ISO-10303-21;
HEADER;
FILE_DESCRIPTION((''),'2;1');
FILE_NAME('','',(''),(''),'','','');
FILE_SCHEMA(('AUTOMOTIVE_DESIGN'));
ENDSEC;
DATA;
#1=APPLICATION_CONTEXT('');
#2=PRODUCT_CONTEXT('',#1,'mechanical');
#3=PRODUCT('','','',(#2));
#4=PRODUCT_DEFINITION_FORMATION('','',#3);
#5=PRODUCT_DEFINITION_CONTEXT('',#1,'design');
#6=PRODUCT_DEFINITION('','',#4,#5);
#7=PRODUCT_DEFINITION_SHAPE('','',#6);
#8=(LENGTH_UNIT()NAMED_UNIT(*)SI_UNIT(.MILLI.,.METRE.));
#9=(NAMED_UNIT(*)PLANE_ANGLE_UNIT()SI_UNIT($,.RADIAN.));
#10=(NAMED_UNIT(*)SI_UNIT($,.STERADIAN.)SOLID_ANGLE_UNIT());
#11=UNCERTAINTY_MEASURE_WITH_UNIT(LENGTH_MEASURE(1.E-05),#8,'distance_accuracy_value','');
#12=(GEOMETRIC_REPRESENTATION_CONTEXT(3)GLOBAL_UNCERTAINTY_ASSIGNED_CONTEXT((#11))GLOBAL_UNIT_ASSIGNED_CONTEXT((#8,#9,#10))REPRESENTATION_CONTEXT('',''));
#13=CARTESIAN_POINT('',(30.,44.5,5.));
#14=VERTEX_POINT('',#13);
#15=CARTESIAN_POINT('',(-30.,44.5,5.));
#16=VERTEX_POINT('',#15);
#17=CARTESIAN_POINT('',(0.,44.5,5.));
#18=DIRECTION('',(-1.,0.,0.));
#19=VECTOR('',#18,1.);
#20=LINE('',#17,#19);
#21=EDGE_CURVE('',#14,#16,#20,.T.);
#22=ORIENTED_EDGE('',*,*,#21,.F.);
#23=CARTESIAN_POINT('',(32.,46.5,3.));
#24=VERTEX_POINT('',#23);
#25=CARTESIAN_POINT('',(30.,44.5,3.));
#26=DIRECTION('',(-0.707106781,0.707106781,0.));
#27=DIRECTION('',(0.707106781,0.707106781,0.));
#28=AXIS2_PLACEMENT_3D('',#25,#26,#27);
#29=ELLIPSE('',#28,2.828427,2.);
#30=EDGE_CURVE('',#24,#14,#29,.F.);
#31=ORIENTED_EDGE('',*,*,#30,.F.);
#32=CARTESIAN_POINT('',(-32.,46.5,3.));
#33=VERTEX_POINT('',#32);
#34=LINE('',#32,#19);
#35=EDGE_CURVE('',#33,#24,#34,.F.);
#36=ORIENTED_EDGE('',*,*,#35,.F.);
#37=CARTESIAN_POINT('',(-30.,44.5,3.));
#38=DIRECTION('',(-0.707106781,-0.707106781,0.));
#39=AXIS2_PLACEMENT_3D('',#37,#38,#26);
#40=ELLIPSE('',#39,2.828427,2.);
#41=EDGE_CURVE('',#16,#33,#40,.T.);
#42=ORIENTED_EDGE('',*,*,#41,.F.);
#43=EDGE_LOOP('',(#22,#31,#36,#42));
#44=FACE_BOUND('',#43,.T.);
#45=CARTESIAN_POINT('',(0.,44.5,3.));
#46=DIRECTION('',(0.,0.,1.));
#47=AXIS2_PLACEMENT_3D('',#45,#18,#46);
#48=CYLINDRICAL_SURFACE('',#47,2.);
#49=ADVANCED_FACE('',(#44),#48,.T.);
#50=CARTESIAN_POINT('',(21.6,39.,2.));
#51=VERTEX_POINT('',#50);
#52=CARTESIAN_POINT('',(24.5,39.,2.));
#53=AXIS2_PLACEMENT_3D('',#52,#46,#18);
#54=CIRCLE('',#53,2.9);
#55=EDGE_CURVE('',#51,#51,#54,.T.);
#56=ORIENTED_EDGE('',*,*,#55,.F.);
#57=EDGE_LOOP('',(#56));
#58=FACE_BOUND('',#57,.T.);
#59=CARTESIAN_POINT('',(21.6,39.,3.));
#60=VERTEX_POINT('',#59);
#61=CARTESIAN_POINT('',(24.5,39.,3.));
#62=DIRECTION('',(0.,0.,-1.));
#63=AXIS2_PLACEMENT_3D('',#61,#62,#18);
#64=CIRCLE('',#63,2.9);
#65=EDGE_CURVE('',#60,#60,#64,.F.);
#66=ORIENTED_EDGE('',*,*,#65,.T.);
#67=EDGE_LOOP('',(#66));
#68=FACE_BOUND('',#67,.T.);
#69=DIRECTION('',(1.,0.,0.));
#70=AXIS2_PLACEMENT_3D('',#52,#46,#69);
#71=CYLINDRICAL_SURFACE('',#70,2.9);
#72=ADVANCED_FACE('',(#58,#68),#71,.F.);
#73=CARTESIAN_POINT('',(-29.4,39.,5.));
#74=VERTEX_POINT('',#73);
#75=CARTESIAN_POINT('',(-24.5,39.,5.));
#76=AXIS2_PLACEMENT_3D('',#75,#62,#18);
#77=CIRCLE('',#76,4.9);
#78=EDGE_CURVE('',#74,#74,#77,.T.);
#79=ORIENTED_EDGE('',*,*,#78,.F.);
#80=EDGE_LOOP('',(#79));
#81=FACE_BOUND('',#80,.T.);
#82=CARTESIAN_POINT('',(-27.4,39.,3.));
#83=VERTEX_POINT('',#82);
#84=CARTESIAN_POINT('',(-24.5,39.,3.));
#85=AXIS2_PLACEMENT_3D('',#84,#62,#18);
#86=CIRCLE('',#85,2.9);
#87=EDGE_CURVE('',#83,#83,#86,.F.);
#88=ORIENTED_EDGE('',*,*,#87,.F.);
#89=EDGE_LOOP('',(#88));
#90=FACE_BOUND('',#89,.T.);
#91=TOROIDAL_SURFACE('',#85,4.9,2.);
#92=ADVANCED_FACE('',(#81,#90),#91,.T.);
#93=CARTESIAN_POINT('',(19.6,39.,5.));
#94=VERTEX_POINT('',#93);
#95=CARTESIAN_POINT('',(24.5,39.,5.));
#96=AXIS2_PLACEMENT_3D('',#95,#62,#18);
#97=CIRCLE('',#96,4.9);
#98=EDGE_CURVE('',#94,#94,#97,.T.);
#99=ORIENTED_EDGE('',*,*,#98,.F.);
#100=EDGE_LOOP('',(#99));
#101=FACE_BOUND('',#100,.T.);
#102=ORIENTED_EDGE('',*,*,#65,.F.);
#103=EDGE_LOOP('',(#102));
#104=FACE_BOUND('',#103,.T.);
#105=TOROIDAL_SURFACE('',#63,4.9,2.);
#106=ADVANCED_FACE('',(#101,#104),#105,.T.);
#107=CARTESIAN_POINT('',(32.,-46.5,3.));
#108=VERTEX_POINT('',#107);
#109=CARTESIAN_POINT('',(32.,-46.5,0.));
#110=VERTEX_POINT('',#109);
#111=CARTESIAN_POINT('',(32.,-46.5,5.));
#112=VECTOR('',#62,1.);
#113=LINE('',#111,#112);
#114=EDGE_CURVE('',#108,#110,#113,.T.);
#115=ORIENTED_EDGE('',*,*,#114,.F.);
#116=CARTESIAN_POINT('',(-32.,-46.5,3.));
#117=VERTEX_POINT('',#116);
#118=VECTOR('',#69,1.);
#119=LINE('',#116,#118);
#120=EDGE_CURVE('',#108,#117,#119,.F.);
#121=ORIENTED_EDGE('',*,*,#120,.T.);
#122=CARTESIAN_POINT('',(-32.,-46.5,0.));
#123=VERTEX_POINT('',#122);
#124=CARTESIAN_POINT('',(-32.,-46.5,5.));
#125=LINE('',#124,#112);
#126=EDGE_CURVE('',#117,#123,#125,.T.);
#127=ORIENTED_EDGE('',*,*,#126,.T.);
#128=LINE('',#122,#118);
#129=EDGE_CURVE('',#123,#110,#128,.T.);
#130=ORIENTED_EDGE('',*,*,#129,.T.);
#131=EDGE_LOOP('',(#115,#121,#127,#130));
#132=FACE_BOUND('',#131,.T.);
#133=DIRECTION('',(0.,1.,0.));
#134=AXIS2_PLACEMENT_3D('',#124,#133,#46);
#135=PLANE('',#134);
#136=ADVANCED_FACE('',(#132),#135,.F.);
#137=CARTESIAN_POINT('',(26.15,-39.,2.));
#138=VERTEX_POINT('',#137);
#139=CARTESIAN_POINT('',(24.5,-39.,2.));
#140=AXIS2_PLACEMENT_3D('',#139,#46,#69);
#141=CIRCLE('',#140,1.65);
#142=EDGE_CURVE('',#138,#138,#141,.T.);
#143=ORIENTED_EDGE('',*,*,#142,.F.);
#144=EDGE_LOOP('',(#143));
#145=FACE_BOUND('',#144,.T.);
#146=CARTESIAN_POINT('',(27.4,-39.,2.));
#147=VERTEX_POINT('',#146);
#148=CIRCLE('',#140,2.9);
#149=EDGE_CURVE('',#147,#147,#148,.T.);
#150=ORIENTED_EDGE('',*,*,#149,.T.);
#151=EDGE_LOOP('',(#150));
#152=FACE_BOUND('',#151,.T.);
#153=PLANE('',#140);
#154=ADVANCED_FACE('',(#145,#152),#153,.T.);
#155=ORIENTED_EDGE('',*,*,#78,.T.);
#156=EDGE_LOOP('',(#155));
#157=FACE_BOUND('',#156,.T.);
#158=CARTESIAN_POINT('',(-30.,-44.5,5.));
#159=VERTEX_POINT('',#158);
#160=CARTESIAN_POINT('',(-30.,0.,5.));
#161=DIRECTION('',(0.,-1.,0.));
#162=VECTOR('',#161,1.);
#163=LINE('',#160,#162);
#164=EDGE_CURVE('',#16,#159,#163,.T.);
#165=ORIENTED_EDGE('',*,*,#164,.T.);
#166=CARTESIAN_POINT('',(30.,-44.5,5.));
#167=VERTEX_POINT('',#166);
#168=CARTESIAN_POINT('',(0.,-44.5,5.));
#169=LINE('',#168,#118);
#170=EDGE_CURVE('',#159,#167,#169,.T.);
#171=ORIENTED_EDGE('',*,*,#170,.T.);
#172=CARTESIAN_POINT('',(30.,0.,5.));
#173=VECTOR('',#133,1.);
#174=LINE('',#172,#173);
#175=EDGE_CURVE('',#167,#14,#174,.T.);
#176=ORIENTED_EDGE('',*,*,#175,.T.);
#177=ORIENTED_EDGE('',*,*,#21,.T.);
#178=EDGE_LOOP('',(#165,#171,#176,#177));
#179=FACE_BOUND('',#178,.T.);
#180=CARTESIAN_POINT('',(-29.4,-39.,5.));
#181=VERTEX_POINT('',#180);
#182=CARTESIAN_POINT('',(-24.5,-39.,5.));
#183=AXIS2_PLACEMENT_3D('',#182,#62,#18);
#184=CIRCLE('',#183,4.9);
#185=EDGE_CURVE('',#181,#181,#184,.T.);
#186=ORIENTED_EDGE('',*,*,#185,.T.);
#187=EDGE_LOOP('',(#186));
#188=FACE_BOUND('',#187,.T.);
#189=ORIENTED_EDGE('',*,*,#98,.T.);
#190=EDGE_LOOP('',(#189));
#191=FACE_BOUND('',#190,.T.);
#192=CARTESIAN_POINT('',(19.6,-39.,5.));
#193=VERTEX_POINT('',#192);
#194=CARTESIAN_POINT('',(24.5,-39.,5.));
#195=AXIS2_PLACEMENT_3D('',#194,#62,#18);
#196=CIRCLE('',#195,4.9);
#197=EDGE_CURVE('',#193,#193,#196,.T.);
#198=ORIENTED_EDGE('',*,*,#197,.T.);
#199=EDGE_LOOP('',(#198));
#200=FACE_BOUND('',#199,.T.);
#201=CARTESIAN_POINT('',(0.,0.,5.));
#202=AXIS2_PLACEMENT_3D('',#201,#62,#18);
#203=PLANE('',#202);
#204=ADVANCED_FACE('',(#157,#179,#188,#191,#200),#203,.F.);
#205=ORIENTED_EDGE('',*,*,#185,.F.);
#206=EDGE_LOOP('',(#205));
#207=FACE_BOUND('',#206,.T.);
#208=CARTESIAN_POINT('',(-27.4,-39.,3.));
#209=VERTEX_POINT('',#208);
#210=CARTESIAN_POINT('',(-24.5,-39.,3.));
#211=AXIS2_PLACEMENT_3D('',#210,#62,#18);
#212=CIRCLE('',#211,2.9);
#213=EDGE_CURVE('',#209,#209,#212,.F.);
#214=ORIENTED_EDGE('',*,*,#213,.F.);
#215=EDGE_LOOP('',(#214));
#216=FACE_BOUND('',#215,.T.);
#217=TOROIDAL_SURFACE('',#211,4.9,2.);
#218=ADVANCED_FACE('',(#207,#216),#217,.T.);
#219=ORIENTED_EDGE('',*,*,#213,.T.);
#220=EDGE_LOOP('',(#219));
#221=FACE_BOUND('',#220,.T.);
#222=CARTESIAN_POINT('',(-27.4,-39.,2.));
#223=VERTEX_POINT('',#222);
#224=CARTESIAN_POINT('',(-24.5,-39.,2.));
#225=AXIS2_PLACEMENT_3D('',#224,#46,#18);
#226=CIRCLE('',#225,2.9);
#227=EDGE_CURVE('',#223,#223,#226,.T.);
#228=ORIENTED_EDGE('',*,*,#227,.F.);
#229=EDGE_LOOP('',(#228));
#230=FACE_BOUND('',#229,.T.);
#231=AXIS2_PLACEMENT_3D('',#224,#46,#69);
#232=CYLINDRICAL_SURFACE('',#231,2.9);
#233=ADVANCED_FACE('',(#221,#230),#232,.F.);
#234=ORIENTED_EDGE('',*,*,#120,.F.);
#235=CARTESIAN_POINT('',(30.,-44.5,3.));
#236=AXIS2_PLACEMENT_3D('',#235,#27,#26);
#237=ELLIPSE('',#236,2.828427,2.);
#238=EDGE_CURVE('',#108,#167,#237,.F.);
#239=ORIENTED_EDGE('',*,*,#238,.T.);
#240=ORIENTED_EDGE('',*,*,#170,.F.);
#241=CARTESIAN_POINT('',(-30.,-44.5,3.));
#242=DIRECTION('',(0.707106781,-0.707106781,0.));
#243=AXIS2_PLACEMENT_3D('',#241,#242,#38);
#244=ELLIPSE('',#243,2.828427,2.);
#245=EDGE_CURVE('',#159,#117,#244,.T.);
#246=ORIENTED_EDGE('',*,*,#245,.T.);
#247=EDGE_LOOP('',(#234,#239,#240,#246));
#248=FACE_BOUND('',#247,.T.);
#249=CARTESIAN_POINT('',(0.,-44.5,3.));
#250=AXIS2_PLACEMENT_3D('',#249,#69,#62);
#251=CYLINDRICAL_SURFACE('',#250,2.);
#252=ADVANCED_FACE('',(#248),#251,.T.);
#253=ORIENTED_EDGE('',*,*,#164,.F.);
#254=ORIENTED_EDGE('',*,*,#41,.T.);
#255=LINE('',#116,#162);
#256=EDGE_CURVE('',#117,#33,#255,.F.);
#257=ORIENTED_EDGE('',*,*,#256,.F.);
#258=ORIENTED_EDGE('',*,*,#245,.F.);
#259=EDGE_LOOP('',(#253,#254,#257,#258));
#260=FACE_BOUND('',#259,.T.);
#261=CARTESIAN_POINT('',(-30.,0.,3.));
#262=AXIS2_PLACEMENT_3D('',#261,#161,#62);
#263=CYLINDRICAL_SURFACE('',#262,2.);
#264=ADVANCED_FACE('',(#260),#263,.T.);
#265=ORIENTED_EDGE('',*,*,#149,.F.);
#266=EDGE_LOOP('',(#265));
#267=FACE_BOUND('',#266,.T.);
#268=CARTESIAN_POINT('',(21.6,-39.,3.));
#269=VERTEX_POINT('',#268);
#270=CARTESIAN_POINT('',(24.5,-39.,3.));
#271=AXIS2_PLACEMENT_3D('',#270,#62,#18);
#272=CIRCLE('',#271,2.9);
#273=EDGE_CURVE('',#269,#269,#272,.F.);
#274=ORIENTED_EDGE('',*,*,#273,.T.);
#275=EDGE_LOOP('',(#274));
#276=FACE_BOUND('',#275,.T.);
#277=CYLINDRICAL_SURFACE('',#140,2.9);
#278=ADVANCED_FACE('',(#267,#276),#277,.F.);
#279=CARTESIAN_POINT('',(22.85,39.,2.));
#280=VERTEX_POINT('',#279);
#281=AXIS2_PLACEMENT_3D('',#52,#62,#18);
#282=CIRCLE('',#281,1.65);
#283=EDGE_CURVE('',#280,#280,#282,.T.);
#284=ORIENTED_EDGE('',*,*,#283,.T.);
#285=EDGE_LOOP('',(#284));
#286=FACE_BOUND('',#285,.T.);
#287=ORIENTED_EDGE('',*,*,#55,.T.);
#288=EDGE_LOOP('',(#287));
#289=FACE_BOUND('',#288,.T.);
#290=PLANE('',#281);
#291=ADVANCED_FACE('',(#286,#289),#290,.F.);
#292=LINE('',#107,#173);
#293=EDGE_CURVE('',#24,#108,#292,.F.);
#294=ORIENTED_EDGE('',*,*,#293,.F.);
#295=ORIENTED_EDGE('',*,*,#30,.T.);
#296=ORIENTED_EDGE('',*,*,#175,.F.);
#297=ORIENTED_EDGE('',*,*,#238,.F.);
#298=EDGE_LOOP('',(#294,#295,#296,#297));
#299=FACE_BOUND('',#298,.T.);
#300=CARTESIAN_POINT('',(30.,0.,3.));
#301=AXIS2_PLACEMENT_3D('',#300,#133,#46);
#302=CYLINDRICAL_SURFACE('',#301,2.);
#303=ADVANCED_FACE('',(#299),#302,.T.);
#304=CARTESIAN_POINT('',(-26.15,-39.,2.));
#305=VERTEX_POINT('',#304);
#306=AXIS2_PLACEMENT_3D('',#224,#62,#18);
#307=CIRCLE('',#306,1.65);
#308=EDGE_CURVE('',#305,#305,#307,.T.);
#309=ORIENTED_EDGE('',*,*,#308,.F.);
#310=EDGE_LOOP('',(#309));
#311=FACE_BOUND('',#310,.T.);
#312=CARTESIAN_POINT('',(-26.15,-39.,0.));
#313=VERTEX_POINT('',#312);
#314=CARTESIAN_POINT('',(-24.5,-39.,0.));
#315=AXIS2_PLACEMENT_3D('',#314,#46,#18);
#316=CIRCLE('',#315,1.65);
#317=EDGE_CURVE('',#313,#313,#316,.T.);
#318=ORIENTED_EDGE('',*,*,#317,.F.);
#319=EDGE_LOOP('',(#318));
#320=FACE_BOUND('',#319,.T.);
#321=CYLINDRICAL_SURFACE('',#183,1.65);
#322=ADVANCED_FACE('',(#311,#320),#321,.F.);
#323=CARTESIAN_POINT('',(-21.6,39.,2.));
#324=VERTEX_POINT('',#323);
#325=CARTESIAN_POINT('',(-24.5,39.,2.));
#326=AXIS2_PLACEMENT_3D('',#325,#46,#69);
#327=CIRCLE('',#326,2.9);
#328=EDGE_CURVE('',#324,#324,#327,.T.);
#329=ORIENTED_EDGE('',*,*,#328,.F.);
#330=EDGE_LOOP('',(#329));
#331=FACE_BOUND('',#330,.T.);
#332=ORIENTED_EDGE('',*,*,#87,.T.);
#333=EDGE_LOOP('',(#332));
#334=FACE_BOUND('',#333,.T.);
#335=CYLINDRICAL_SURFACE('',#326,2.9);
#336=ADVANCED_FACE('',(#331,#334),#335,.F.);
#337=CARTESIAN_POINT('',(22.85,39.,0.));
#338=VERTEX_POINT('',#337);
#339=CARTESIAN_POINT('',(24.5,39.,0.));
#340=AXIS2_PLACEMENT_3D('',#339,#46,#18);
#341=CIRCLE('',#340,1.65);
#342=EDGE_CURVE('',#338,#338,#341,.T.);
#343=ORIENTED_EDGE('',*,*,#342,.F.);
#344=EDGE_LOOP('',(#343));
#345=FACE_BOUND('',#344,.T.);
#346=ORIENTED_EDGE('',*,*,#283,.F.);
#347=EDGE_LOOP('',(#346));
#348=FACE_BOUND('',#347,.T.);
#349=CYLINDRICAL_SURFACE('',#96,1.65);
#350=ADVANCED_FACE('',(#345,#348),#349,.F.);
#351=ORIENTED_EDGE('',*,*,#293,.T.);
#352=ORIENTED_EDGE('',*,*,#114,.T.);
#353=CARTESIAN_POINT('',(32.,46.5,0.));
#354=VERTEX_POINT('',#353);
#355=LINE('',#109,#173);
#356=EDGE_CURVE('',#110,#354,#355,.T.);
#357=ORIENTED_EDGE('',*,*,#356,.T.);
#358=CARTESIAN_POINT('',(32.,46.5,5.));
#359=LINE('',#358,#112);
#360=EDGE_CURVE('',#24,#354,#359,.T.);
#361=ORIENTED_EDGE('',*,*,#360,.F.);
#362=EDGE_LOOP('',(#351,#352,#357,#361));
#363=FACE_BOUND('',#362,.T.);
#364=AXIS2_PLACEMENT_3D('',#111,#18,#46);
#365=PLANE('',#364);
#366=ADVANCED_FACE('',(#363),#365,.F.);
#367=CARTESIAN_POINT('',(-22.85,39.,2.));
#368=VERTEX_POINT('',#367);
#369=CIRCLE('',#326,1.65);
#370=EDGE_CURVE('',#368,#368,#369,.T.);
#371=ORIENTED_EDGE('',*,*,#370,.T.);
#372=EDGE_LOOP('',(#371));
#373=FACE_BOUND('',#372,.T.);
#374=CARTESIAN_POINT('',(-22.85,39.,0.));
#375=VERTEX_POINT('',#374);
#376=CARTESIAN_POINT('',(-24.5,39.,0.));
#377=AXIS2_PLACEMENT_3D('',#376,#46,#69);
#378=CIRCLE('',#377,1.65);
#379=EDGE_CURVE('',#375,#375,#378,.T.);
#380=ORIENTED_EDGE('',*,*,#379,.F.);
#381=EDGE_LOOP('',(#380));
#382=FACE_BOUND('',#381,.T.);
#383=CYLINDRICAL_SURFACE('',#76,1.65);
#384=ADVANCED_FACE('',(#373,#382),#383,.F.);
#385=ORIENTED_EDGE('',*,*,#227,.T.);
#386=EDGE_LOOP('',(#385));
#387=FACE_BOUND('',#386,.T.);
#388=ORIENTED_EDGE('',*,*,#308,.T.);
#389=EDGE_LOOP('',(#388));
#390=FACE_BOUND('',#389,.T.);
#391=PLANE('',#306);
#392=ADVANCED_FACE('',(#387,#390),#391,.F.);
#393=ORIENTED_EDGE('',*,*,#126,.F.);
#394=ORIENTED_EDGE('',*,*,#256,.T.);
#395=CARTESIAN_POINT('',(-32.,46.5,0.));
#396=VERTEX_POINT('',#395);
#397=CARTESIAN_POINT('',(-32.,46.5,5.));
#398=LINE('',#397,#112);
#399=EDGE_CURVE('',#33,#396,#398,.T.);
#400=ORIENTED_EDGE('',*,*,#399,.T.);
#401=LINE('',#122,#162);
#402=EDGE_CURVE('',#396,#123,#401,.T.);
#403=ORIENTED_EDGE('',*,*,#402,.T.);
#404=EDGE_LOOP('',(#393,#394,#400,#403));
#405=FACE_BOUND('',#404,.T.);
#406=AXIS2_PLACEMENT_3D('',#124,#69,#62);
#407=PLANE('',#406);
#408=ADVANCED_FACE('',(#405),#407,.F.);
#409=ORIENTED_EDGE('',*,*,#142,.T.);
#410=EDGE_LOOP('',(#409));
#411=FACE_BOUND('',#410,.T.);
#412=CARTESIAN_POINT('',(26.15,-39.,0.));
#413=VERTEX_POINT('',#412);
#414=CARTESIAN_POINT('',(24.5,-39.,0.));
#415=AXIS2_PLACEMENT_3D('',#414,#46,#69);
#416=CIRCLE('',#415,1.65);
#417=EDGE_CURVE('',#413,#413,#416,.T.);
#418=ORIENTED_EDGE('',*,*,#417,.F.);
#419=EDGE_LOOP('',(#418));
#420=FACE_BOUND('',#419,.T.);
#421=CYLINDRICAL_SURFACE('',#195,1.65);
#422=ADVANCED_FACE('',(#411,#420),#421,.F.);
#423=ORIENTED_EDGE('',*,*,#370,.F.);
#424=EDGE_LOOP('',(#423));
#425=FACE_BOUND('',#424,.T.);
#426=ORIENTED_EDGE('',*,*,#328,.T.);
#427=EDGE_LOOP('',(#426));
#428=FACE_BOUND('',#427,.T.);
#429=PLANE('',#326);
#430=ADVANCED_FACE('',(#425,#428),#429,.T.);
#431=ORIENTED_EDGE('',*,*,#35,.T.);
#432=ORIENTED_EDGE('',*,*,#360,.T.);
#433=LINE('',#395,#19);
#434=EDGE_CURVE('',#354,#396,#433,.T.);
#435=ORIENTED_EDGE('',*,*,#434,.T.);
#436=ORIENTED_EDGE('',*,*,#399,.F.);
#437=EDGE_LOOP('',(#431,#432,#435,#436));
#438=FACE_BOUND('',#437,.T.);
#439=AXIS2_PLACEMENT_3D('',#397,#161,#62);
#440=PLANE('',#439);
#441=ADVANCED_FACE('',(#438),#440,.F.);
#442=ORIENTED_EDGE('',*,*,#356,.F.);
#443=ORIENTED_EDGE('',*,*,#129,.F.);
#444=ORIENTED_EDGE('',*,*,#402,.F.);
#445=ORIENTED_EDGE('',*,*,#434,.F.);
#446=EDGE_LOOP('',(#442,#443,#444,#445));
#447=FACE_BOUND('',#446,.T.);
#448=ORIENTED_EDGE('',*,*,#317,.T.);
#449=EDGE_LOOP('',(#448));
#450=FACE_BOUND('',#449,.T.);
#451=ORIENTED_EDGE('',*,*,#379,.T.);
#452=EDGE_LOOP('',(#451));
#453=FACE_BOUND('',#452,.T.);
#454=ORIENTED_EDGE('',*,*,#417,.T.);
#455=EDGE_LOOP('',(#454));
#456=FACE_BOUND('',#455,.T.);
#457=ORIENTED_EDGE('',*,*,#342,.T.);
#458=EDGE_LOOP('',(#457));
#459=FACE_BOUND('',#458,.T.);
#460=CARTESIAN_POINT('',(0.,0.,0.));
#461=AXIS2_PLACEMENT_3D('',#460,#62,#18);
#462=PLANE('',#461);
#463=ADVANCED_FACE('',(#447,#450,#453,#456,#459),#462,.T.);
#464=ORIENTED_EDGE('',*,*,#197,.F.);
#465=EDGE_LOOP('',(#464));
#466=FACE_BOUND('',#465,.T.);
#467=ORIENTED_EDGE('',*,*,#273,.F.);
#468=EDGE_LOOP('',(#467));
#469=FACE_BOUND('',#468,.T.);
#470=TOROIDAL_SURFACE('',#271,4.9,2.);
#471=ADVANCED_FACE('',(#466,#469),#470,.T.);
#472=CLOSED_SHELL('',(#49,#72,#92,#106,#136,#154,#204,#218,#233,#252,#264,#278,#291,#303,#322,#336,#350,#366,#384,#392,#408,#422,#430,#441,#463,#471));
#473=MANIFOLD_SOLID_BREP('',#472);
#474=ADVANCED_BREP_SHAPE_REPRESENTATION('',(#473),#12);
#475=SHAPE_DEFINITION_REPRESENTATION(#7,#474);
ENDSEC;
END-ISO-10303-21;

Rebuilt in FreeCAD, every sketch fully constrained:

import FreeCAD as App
import Part
import Sketcher
from FreeCAD import Vector
Q = App.Units.Quantity


def edges_at(feature, points):
    """Names of the edges that pass closest to the given points."""
    edges = feature.Shape.Edges
    near = lambda p: min(range(len(edges)), key=lambda i: edges[i].distToShape(Part.Vertex(*p))[0])
    return sorted({f"Edge{near(p) + 1}" for p in points})

doc = App.newDocument("Part")
body = doc.addObject("PartDesign::Body", "Body")

# Sketch on XY plane
sketch1 = body.newObject("Sketcher::SketchObject", "Sketch")
sketch1.AttachmentSupport = (doc.getObject("XY_Plane"), [""])
sketch1.MapMode = "FlatFace"
sketch1.addGeometry(Part.LineSegment(Vector(-32, 46.5, 0), Vector(-32, -46.5, 0)), False)
sketch1.addGeometry(Part.LineSegment(Vector(-32, -46.5, 0), Vector(32, -46.5, 0)), False)
sketch1.addGeometry(Part.LineSegment(Vector(32, -46.5, 0), Vector(32, 46.5, 0)), False)
sketch1.addGeometry(Part.LineSegment(Vector(32, 46.5, 0), Vector(-32, 46.5, 0)), False)
sketch1.addGeometry(Part.Circle(Vector(-24.5, -39, 0), Vector(0, 0, 1), 1.6), False)
sketch1.addGeometry(Part.Circle(Vector(24.5, -39, 0), Vector(0, 0, 1), 1.6), False)
sketch1.addGeometry(Part.Circle(Vector(-24.5, 39, 0), Vector(0, 0, 1), 1.6), False)
sketch1.addGeometry(Part.Circle(Vector(24.5, 39, 0), Vector(0, 0, 1), 1.6), False)
sketch1.addConstraint(Sketcher.Constraint("Coincident", 0, 2, 1, 1))
sketch1.addConstraint(Sketcher.Constraint("Coincident", 1, 2, 2, 1))
sketch1.addConstraint(Sketcher.Constraint("Coincident", 2, 2, 3, 1))
sketch1.addConstraint(Sketcher.Constraint("Coincident", 3, 2, 0, 1))
sketch1.addConstraint(Sketcher.Constraint("Vertical", 0))
sketch1.addConstraint(Sketcher.Constraint("Horizontal", 1))
sketch1.addConstraint(Sketcher.Constraint("Vertical", 2))
sketch1.addConstraint(Sketcher.Constraint("Horizontal", 3))
sketch1.addConstraint(Sketcher.Constraint("Equal", 4, 5))
sketch1.addConstraint(Sketcher.Constraint("Equal", 5, 6))
sketch1.addConstraint(Sketcher.Constraint("Equal", 6, 7))
sketch1.addConstraint(Sketcher.Constraint("Symmetric", 5, 3, 6, 3, -1, 1))
sketch1.addConstraint(Sketcher.Constraint("Symmetric", 4, 3, 7, 3, -1, 1))
sketch1.addConstraint(Sketcher.Constraint("Symmetric", 0, 2, 2, 2, -1, 1))
sketch1.addConstraint(Sketcher.Constraint("Symmetric", 4, 3, 5, 3, -2))
sketch1.addConstraint(Sketcher.Constraint("Diameter", 4, Q("3.3 mm")))
sketch1.addConstraint(Sketcher.Constraint("DistanceX", 1, 1, 1, 2, Q("64 mm")))
sketch1.addConstraint(Sketcher.Constraint("DistanceY", 0, 2, 0, 1, Q("93 mm")))
sketch1.addConstraint(Sketcher.Constraint("DistanceY", 4, 3, -1, 1, Q("39 mm")))
sketch1.addConstraint(Sketcher.Constraint("DistanceX", 4, 3, 5, 3, Q("49 mm")))
pad1 = body.newObject("PartDesign::Pad", "Pad")
pad1.Profile = sketch1
pad1.Length = 5

# Sketch on XY plane
sketch2 = body.newObject("Sketcher::SketchObject", "Sketch001")
sketch2.AttachmentSupport = (doc.getObject("XY_Plane"), [""])
sketch2.MapMode = "FlatFace"
sketch2.AttachmentOffset = App.Placement(Vector(0, 0, 5), App.Rotation())
sketch2.addGeometry(Part.Circle(Vector(-24.5, 39, 0), Vector(0, 0, 1), 2.9), False)
sketch2.addGeometry(Part.Circle(Vector(24.5, 39, 0), Vector(0, 0, 1), 2.9), False)
sketch2.addGeometry(Part.Circle(Vector(24.5, -39, 0), Vector(0, 0, 1), 2.9), False)
sketch2.addGeometry(Part.Circle(Vector(-24.5, -39, 0), Vector(0, 0, 1), 2.9), False)
sketch2.addConstraint(Sketcher.Constraint("Equal", 0, 1))
sketch2.addConstraint(Sketcher.Constraint("Equal", 1, 2))
sketch2.addConstraint(Sketcher.Constraint("Equal", 2, 3))
sketch2.addConstraint(Sketcher.Constraint("Symmetric", 0, 3, 2, 3, -1, 1))
sketch2.addConstraint(Sketcher.Constraint("Symmetric", 1, 3, 3, 3, -1, 1))
sketch2.addConstraint(Sketcher.Constraint("Symmetric", 0, 3, 1, 3, -2))
sketch2.addConstraint(Sketcher.Constraint("Diameter", 0, Q("5.8 mm")))
sketch2.addConstraint(Sketcher.Constraint("DistanceY", -1, 1, 0, 3, Q("39 mm")))
sketch2.addConstraint(Sketcher.Constraint("DistanceX", 0, 3, 1, 3, Q("49 mm")))
pocket1 = body.newObject("PartDesign::Pocket", "Pocket")
pocket1.Profile = sketch2
pocket1.Length = 3
doc.recompute()

fillet = body.newObject("PartDesign::Fillet", "Fillet")
fillet.Base = (pocket1, edges_at(pocket1, [
    (-32, 0, 5),
    (0, -46.5, 5),
    (-21.6, -39, 5),
    (21.6, -39, 5),
    (27.4, 39, 5),
    (-27.4, 39, 5),
    (32, 0, 5),
    (0, 46.5, 5),
]))
fillet.Radius = 2

doc.recompute()
